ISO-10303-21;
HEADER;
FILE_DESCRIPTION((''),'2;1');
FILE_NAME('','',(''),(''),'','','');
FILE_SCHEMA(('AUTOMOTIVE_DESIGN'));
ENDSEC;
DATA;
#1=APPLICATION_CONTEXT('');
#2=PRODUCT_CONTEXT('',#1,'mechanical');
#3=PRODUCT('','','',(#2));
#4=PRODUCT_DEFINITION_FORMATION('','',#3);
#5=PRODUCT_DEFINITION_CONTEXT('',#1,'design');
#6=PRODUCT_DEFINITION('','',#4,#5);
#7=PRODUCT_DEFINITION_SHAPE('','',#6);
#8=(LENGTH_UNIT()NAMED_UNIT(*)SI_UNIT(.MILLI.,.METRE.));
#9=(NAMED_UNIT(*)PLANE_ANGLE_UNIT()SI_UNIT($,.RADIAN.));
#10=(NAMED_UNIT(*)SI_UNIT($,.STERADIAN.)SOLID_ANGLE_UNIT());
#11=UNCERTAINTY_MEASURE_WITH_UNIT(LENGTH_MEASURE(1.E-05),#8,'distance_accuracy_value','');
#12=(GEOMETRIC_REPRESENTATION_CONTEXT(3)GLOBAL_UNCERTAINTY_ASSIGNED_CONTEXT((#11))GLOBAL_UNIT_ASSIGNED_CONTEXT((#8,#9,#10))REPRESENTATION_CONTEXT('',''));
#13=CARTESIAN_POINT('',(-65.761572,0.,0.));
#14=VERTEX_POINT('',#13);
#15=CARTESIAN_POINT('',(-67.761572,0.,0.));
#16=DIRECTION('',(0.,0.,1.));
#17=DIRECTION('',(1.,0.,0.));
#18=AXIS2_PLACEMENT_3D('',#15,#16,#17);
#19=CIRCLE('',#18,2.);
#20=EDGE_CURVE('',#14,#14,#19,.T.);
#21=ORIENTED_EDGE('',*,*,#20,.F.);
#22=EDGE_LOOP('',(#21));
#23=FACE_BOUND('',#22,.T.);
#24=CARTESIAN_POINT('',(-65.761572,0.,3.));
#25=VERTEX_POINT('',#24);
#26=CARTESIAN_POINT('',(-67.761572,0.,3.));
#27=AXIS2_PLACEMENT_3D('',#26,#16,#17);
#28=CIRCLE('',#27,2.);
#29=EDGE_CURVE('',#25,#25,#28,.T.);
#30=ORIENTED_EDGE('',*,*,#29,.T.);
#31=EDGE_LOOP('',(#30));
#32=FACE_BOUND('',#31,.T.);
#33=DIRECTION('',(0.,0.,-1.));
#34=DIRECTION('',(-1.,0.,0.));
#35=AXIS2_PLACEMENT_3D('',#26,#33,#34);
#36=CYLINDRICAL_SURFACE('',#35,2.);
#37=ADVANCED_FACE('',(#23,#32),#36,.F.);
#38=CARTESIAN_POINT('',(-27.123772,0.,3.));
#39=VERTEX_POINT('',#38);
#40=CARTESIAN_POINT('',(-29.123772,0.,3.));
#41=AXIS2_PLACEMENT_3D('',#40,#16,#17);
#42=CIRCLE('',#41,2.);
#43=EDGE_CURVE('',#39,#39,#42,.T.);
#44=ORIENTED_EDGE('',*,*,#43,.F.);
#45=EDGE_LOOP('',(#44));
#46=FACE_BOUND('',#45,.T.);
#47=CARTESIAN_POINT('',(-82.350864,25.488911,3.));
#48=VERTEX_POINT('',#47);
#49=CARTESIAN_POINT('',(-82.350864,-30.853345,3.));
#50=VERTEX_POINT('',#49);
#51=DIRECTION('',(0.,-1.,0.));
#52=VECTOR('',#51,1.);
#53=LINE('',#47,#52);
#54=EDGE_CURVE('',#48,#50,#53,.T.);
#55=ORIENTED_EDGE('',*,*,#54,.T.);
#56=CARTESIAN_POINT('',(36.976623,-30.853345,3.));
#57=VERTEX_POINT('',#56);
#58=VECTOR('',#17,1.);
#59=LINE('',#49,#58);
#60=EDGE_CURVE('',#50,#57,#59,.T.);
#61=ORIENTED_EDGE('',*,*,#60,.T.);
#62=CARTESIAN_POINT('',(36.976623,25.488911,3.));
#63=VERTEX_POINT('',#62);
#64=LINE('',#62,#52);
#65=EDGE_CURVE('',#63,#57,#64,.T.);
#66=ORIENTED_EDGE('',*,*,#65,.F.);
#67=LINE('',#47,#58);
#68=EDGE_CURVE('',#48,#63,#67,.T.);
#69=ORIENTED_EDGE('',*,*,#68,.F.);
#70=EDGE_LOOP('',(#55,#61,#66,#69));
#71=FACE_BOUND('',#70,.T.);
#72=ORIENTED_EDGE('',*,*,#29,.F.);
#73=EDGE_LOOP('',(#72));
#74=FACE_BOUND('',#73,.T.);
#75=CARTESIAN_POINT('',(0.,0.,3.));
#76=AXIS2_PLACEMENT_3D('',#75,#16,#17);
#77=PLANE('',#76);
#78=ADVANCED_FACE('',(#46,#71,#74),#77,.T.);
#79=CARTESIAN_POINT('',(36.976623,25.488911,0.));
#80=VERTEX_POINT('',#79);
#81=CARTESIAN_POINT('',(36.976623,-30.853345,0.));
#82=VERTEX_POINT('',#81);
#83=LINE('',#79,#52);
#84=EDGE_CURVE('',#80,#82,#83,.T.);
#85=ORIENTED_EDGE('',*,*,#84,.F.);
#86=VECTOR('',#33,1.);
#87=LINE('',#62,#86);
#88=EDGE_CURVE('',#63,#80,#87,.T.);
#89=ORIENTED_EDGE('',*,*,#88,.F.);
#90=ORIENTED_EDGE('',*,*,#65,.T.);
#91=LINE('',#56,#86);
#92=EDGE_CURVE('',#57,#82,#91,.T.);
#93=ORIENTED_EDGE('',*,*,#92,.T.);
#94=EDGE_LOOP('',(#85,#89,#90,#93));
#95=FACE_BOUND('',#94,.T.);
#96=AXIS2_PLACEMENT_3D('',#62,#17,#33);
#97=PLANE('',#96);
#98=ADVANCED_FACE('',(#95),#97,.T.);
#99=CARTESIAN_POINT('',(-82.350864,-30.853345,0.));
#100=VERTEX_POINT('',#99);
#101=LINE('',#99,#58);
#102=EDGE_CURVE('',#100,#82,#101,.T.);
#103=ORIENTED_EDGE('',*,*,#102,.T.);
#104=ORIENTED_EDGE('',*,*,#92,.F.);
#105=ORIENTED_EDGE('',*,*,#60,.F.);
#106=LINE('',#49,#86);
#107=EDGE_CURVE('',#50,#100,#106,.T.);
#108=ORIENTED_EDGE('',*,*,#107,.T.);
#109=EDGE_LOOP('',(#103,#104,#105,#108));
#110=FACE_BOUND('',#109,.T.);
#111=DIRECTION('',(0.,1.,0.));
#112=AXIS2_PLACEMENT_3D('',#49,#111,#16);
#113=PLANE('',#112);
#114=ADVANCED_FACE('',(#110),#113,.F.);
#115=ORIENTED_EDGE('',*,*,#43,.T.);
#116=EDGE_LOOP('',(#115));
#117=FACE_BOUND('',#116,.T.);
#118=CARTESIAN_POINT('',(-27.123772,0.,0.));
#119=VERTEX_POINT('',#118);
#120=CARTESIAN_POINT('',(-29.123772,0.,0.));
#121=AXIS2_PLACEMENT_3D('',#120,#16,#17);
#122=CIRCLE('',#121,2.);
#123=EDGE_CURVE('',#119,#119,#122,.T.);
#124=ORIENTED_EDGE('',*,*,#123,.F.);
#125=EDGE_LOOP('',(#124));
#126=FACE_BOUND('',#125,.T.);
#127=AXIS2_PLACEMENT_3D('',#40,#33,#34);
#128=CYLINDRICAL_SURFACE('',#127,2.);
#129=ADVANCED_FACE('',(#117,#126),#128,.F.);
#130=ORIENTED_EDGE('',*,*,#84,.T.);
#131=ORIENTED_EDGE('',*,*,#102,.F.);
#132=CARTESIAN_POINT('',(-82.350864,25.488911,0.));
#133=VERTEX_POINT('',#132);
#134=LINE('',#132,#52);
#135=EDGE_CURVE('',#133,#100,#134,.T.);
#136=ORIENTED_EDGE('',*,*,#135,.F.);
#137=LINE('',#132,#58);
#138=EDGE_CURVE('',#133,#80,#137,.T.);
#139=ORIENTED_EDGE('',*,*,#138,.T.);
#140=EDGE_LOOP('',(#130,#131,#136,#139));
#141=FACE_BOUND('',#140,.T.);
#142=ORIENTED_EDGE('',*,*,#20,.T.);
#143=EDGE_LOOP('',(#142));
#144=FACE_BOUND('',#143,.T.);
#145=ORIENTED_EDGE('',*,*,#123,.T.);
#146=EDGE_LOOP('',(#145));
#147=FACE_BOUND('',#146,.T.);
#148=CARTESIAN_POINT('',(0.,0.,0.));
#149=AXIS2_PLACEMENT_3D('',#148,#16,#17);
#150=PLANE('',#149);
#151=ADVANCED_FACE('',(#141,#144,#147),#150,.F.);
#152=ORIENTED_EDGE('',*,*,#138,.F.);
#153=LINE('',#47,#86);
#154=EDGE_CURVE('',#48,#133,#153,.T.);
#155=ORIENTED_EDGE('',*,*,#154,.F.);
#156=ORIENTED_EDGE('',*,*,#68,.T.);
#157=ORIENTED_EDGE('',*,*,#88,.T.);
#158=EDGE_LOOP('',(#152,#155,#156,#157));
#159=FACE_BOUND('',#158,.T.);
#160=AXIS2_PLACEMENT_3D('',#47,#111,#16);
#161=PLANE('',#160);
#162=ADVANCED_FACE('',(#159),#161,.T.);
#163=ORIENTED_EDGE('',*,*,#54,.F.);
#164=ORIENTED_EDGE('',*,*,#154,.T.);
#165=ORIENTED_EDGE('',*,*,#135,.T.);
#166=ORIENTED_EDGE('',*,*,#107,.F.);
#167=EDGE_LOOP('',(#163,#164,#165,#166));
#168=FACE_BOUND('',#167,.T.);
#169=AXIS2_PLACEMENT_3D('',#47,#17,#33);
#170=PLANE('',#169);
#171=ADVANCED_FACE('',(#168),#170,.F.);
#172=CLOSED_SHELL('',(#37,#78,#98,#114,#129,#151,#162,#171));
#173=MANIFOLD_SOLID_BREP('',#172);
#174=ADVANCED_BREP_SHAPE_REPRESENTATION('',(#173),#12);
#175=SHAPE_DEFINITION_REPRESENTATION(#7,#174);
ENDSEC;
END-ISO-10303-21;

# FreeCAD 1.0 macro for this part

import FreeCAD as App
import Part
import Sketcher

doc = App.newDocument("Part")
body = doc.addObject("PartDesign::Body", "Body")

# Sketch on XY plane
sketch1 = doc.addObject("Sketcher::SketchObject", "Sketch")
body.addObject(sketch1)
sketch1.AttachmentSupport = (doc.XY_Plane, [""])
sketch1.MapMode = "FlatFace"
sketch1.addGeometry([
    Part.LineSegment(App.Vector(-82.350864, 25.488911, 0), App.Vector(-82.350864, -30.853345, 0)),  # 0
    Part.LineSegment(App.Vector(-82.350864, -30.853345, 0), App.Vector(36.976623, -30.853345, 0)),  # 1
    Part.LineSegment(App.Vector(36.976623, -30.853345, 0), App.Vector(36.976623, 25.488911, 0)),  # 2
    Part.LineSegment(App.Vector(36.976623, 25.488911, 0), App.Vector(-82.350864, 25.488911, 0)),  # 3
    Part.Circle(App.Vector(-67.761572, 0, 0), App.Vector(0, 0, 1), 2),  # 4
    Part.Circle(App.Vector(-29.123772, 0, 0), App.Vector(0, 0, 1), 2),  # 5
], False)
sketch1.addConstraint([
    Sketcher.Constraint("Coincident", 0, 2, 1, 1),
    Sketcher.Constraint("Coincident", 1, 2, 2, 1),
    Sketcher.Constraint("Coincident", 2, 2, 3, 1),
    Sketcher.Constraint("Coincident", 3, 2, 0, 1),
    Sketcher.Constraint("Vertical", 0),
    Sketcher.Constraint("Horizontal", 1),
    Sketcher.Constraint("Vertical", 2),
    Sketcher.Constraint("Horizontal", 3),
    Sketcher.Constraint("Equal", 4, 5),
    Sketcher.Constraint("PointOnObject", 4, 3, -1),
    Sketcher.Constraint("PointOnObject", 5, 3, -1),
    Sketcher.Constraint("Diameter", 4, 4.0),
    Sketcher.Constraint("DistanceX", 4, 3, 5, 3, 38.6378),
    Sketcher.Constraint("DistanceX", 1, 1, 1, 2, 119.327486),
    Sketcher.Constraint("DistanceY", 0, 2, 0, 1, 56.342256),
    Sketcher.Constraint("DistanceX", 4, 3, -1, 1, 67.761572),
    Sketcher.Constraint("DistanceY", -1, 1, 2, 2, 25.488911),
    Sketcher.Constraint("DistanceX", 0, 2, 4, 3, 14.589292),
])
pad1 = doc.addObject("PartDesign::Pad", "Pad")
body.addObject(pad1)
pad1.Profile = sketch1
pad1.Length = 3

doc.recompute()
